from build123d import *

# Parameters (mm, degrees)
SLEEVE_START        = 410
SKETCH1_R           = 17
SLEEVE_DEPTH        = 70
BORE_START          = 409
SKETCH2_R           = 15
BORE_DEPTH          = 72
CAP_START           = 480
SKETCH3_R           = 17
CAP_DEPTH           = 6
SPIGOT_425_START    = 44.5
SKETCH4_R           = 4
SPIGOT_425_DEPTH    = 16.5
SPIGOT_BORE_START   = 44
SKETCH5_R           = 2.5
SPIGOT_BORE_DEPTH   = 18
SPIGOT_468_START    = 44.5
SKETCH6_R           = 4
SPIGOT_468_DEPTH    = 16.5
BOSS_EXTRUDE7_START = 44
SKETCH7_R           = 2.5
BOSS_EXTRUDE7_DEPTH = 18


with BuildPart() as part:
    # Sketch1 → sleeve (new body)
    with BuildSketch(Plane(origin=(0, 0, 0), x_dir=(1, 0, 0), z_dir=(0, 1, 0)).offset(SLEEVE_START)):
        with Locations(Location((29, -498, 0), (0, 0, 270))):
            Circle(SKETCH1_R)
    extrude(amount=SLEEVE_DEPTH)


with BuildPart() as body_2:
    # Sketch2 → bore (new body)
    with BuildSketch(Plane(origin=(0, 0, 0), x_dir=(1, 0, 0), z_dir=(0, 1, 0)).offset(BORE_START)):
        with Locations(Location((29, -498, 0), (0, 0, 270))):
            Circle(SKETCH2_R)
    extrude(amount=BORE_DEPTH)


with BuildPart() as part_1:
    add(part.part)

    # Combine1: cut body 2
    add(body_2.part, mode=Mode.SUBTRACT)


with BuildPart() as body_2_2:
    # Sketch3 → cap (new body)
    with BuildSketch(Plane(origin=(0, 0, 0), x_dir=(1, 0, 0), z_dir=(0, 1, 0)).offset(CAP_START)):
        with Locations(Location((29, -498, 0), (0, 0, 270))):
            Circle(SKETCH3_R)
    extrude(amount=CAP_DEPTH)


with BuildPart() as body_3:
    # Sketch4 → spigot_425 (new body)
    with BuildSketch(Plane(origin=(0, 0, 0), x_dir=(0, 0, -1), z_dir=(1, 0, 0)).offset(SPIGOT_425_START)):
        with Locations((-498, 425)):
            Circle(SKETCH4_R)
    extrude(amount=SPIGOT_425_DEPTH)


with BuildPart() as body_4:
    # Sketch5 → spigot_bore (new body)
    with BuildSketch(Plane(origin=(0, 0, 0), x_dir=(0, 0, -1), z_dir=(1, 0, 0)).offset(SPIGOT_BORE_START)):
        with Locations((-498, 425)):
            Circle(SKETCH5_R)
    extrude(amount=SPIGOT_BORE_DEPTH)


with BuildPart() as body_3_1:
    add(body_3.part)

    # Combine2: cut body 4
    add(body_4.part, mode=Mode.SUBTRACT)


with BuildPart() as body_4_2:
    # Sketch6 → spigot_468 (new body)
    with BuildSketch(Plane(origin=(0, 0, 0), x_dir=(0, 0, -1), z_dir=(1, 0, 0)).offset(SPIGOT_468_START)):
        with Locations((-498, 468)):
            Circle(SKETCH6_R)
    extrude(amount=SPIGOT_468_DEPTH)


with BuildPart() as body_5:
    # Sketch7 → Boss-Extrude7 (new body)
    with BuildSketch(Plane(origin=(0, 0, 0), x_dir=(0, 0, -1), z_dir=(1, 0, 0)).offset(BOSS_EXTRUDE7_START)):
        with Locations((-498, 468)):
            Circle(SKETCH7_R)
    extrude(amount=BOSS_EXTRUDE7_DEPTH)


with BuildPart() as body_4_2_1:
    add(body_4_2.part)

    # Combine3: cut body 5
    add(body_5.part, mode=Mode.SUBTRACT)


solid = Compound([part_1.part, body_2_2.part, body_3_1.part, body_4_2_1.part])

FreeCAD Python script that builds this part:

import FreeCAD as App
import Part
import Sketcher
from FreeCAD import Vector
Q = App.Units.Quantity

doc = App.newDocument("Part")
body = doc.addObject("PartDesign::Body", "Body")

sketch1 = body.newObject("Sketcher::SketchObject", "Sketch")
sketch1.AttachmentSupport = (doc.getObject("XZ_Plane"), [""])
sketch1.MapMode = "FlatFace"
sketch1.AttachmentOffset = App.Placement(Vector(0, 0, -410), App.Rotation())
sketch1.addGeometry(Part.Circle(Vector(29, 498, 0), Vector(0, 0, 1), 17), False)
sketch1.addConstraint([
    Sketcher.Constraint("Diameter", 0, Q("34 mm")),
    Sketcher.Constraint("DistanceX", -1, 1, 0, 3, Q("29 mm")),
    Sketcher.Constraint("DistanceY", -1, 1, 0, 3, Q("498 mm")),
])
pad1 = body.newObject("PartDesign::Pad", "Pad")
pad1.Profile = sketch1
pad1.Length = 70
pad1.Reversed = True
body2 = doc.addObject("PartDesign::Body", "Body001")

sketch2 = body2.newObject("Sketcher::SketchObject", "Sketch001")
sketch2.AttachmentSupport = (doc.getObject("XZ_Plane001"), [""])
sketch2.MapMode = "FlatFace"
sketch2.AttachmentOffset = App.Placement(Vector(0, 0, -409), App.Rotation())
sketch2.addGeometry(Part.Circle(Vector(29, 498, 0), Vector(0, 0, 1), 15), False)
sketch2.addConstraint([
    Sketcher.Constraint("Diameter", 0, Q("30 mm")),
    Sketcher.Constraint("DistanceX", -1, 1, 0, 3, Q("29 mm")),
    Sketcher.Constraint("DistanceY", -1, 1, 0, 3, Q("498 mm")),
])
pad2 = body2.newObject("PartDesign::Pad", "Pad001")
pad2.Profile = sketch2
pad2.Length = 72
pad2.Reversed = True
doc.recompute()

boolean = body.newObject("PartDesign::Boolean", "Boolean")
boolean.Type = "Cut"
boolean.addObjects([body2])
body3 = doc.addObject("PartDesign::Body", "Body002")

sketch3 = body3.newObject("Sketcher::SketchObject", "Sketch002")
sketch3.AttachmentSupport = (doc.getObject("XZ_Plane002"), [""])
sketch3.MapMode = "FlatFace"
sketch3.AttachmentOffset = App.Placement(Vector(0, 0, -480), App.Rotation())
sketch3.addGeometry(Part.Circle(Vector(29, 498, 0), Vector(0, 0, 1), 17), False)
sketch3.addConstraint([
    Sketcher.Constraint("Diameter", 0, Q("34 mm")),
    Sketcher.Constraint("DistanceX", -1, 1, 0, 3, Q("29 mm")),
    Sketcher.Constraint("DistanceY", -1, 1, 0, 3, Q("498 mm")),
])
pad3 = body3.newObject("PartDesign::Pad", "Pad002")
pad3.Profile = sketch3
pad3.Length = 6
pad3.Reversed = True
body4 = doc.addObject("PartDesign::Body", "Body003")

sketch4 = body4.newObject("Sketcher::SketchObject", "Sketch003")
sketch4.AttachmentSupport = (doc.getObject("YZ_Plane003"), [""])
sketch4.MapMode = "FlatFace"
sketch4.AttachmentOffset = App.Placement(Vector(0, 0, 44.5), App.Rotation())
sketch4.addGeometry(Part.Circle(Vector(425, 498, 0), Vector(0, 0, 1), 4), False)
sketch4.addConstraint([
    Sketcher.Constraint("Diameter", 0, Q("8 mm")),
    Sketcher.Constraint("DistanceX", -1, 1, 0, 3, Q("425 mm")),
    Sketcher.Constraint("DistanceY", -1, 1, 0, 3, Q("498 mm")),
])
pad4 = body4.newObject("PartDesign::Pad", "Pad003")
pad4.Profile = sketch4
pad4.Length = 16.5
body5 = doc.addObject("PartDesign::Body", "Body004")

sketch5 = body5.newObject("Sketcher::SketchObject", "Sketch004")
sketch5.AttachmentSupport = (doc.getObject("YZ_Plane004"), [""])
sketch5.MapMode = "FlatFace"
sketch5.AttachmentOffset = App.Placement(Vector(0, 0, 44), App.Rotation())
sketch5.addGeometry(Part.Circle(Vector(425, 498, 0), Vector(0, 0, 1), 2.5), False)
sketch5.addConstraint([
    Sketcher.Constraint("Diameter", 0, Q("5 mm")),
    Sketcher.Constraint("DistanceX", -1, 1, 0, 3, Q("425 mm")),
    Sketcher.Constraint("DistanceY", -1, 1, 0, 3, Q("498 mm")),
])
pad5 = body5.newObject("PartDesign::Pad", "Pad004")
pad5.Profile = sketch5
pad5.Length = 18
doc.recompute()

boolean2 = body4.newObject("PartDesign::Boolean", "Boolean001")
boolean2.Type = "Cut"
boolean2.addObjects([body5])
body6 = doc.addObject("PartDesign::Body", "Body005")

sketch6 = body6.newObject("Sketcher::SketchObject", "Sketch005")
sketch6.AttachmentSupport = (doc.getObject("YZ_Plane005"), [""])
sketch6.MapMode = "FlatFace"
sketch6.AttachmentOffset = App.Placement(Vector(0, 0, 44.5), App.Rotation())
sketch6.addGeometry(Part.Circle(Vector(468, 498, 0), Vector(0, 0, 1), 4), False)
sketch6.addConstraint([
    Sketcher.Constraint("Diameter", 0, Q("8 mm")),
    Sketcher.Constraint("DistanceX", -1, 1, 0, 3, Q("468 mm")),
    Sketcher.Constraint("DistanceY", -1, 1, 0, 3, Q("498 mm")),
])
pad6 = body6.newObject("PartDesign::Pad", "Pad005")
pad6.Profile = sketch6
pad6.Length = 16.5
body7 = doc.addObject("PartDesign::Body", "Body006")

sketch7 = body7.newObject("Sketcher::SketchObject", "Sketch006")
sketch7.AttachmentSupport = (doc.getObject("YZ_Plane006"), [""])
sketch7.MapMode = "FlatFace"
sketch7.AttachmentOffset = App.Placement(Vector(0, 0, 44), App.Rotation())
sketch7.addGeometry(Part.Circle(Vector(468, 498, 0), Vector(0, 0, 1), 2.5), False)
sketch7.addConstraint([
    Sketcher.Constraint("Diameter", 0, Q("5 mm")),
    Sketcher.Constraint("DistanceX", -1, 1, 0, 3, Q("468 mm")),
    Sketcher.Constraint("DistanceY", -1, 1, 0, 3, Q("498 mm")),
])
pad7 = body7.newObject("PartDesign::Pad", "Pad006")
pad7.Profile = sketch7
pad7.Length = 18
doc.recompute()

boolean3 = body6.newObject("PartDesign::Boolean", "Boolean002")
boolean3.Type = "Cut"
boolean3.addObjects([body7])

doc.recompute()
